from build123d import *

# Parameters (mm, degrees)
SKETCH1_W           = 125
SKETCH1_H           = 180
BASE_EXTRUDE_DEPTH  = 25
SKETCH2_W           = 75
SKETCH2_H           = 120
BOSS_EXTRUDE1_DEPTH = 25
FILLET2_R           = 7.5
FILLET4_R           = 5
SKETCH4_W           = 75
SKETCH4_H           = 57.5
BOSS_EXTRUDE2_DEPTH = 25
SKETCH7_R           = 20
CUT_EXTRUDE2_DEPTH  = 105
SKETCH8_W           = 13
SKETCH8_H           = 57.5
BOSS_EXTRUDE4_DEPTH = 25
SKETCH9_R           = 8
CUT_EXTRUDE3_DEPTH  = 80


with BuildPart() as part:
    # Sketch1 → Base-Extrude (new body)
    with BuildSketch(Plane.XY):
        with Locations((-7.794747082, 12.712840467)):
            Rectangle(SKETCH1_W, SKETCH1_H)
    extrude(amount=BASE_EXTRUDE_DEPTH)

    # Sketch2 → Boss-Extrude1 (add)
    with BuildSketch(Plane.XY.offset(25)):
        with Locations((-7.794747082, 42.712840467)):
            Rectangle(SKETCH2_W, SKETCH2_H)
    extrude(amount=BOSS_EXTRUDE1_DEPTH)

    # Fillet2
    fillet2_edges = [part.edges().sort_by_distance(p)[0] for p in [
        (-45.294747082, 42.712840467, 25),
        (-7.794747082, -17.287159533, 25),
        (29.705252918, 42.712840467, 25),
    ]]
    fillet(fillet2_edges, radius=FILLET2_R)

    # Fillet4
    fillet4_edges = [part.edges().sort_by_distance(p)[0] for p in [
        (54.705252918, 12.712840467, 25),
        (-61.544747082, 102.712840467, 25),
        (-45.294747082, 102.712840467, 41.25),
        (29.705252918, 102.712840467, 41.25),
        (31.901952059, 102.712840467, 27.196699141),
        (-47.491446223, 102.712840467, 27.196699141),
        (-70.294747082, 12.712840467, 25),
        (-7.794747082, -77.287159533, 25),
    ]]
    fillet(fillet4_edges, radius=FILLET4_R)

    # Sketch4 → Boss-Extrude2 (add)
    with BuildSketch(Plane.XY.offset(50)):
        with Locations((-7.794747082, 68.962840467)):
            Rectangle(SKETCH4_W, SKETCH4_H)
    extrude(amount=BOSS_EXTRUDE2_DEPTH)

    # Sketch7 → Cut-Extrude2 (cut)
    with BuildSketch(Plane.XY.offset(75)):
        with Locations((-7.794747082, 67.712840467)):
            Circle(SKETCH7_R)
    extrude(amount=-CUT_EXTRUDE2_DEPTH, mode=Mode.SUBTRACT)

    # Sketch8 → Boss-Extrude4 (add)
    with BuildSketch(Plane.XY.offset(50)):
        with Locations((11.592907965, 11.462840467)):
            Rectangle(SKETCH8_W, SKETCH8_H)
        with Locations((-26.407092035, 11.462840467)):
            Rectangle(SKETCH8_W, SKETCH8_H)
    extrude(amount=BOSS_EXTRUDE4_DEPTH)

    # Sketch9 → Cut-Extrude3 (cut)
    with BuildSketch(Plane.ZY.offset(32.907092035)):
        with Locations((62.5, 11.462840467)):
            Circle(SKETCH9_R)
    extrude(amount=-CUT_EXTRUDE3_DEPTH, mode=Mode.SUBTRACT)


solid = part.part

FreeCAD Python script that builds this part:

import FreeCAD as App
import Part
import Sketcher
from FreeCAD import Vector
Q = App.Units.Quantity


def edges_at(feature, points):
    """Names of the edges that pass closest to the given points."""
    edges = feature.Shape.Edges
    near = lambda p: min(range(len(edges)), key=lambda i: edges[i].distToShape(Part.Vertex(*p))[0])
    return sorted({f"Edge{near(p) + 1}" for p in points})


def add_polygon(sketch, points):
    """Adds a closed chain of lines whose ends are joined by coincident constraints."""
    first, n = sketch.GeometryCount, len(points)
    for a, b in zip(points, points[1:] + points[:1]):
        sketch.addGeometry(Part.LineSegment(App.Vector(*a, 0), App.Vector(*b, 0)), False)
    for i in range(n):
        sketch.addConstraint(Sketcher.Constraint("Coincident", first + i, 2, first + (i + 1) % n, 1))

doc = App.newDocument("Part")
body = doc.addObject("PartDesign::Body", "Body")

# Sketch on XY plane
sketch1 = body.newObject("Sketcher::SketchObject", "Sketch")
sketch1.AttachmentSupport = (doc.getObject("XY_Plane"), [""])
sketch1.MapMode = "FlatFace"
add_polygon(sketch1, [(-70, 103), (-70, -77), (55, -77), (55, 103)])  # lines 0-3
sketch1.addConstraint(Sketcher.Constraint("Vertical", 0))
sketch1.addConstraint(Sketcher.Constraint("Horizontal", 1))
sketch1.addConstraint(Sketcher.Constraint("Vertical", 2))
sketch1.addConstraint(Sketcher.Constraint("Horizontal", 3))
sketch1.addConstraint(Sketcher.Constraint("DistanceX", 1, 1, 1, 2, Q("125 mm")))
sketch1.addConstraint(Sketcher.Constraint("DistanceY", 0, 2, 0, 1, Q("180 mm")))
sketch1.addConstraint(Sketcher.Constraint("DistanceY", 0, 2, -1, 1, Q("77.28716 mm")))
sketch1.addConstraint(Sketcher.Constraint("DistanceX", 0, 2, -1, 1, Q("70.294747 mm")))
pad1 = body.newObject("PartDesign::Pad", "Pad")
pad1.Profile = sketch1
pad1.Length = 25

# Sketch on XY plane
sketch2 = body.newObject("Sketcher::SketchObject", "Sketch001")
sketch2.AttachmentSupport = (doc.getObject("XY_Plane"), [""])
sketch2.MapMode = "FlatFace"
sketch2.AttachmentOffset = App.Placement(Vector(0, 0, 25), App.Rotation())
add_polygon(sketch2, [(-45, 103), (-45, -17), (30, -17), (30, 103)])  # lines 0-3
sketch2.addConstraint(Sketcher.Constraint("Vertical", 0))
sketch2.addConstraint(Sketcher.Constraint("Horizontal", 1))
sketch2.addConstraint(Sketcher.Constraint("Vertical", 2))
sketch2.addConstraint(Sketcher.Constraint("Horizontal", 3))
sketch2.addConstraint(Sketcher.Constraint("DistanceX", 1, 1, 1, 2, Q("75 mm")))
sketch2.addConstraint(Sketcher.Constraint("DistanceY", 0, 2, 0, 1, Q("120 mm")))
sketch2.addConstraint(Sketcher.Constraint("DistanceY", 0, 2, -1, 1, Q("17.28716 mm")))
sketch2.addConstraint(Sketcher.Constraint("DistanceX", 0, 2, -1, 1, Q("45.294747 mm")))
pad2 = body.newObject("PartDesign::Pad", "Pad001")
pad2.Profile = sketch2
pad2.Length = 25
doc.recompute()

fillet = body.newObject("PartDesign::Fillet", "Fillet")
fillet.Base = (pad2, edges_at(pad2, [(-45.295, 42.713, 25), (-7.795, -17.287, 25), (29.705, 42.713, 25)]))
fillet.Radius = 7.5
doc.recompute()

fillet2 = body.newObject("PartDesign::Fillet", "Fillet001")
fillet2.Base = (fillet, edges_at(fillet, [
    (54.705, 12.713, 25),
    (-61.545, 102.713, 25),
    (-45.295, 102.713, 41.25),
    (29.705, 102.713, 41.25),
    (31.902, 102.713, 27.197),
    (-47.491, 102.713, 27.197),
    (-70.295, 12.713, 25),
    (-7.795, -77.287, 25),
]))
fillet2.Radius = 5

# Sketch on XY plane
sketch3 = body.newObject("Sketcher::SketchObject", "Sketch002")
sketch3.AttachmentSupport = (doc.getObject("XY_Plane"), [""])
sketch3.MapMode = "FlatFace"
sketch3.AttachmentOffset = App.Placement(Vector(0, 0, 50), App.Rotation())
add_polygon(sketch3, [(-45, 98), (-45, 40), (30, 40), (30, 98)])  # lines 0-3
sketch3.addConstraint(Sketcher.Constraint("Vertical", 0))
sketch3.addConstraint(Sketcher.Constraint("Horizontal", 1))
sketch3.addConstraint(Sketcher.Constraint("Vertical", 2))
sketch3.addConstraint(Sketcher.Constraint("Horizontal", 3))
sketch3.addConstraint(Sketcher.Constraint("DistanceX", 1, 1, 1, 2, Q("75 mm")))
sketch3.addConstraint(Sketcher.Constraint("DistanceY", 0, 2, 0, 1, Q("57.5 mm")))
sketch3.addConstraint(Sketcher.Constraint("DistanceY", -1, 1, 0, 2, Q("40.21284 mm")))
sketch3.addConstraint(Sketcher.Constraint("DistanceX", 0, 2, -1, 1, Q("45.294747 mm")))
pad3 = body.newObject("PartDesign::Pad", "Pad002")
pad3.Profile = sketch3
pad3.Length = 25

# Sketch on XY plane
sketch4 = body.newObject("Sketcher::SketchObject", "Sketch003")
sketch4.AttachmentSupport = (doc.getObject("XY_Plane"), [""])
sketch4.MapMode = "FlatFace"
sketch4.AttachmentOffset = App.Placement(Vector(0, 0, 75), App.Rotation())
sketch4.addGeometry(Part.Circle(Vector(-8, 68, 0), Vector(0, 0, 1), 20), False)
sketch4.addConstraint(Sketcher.Constraint("Diameter", 0, Q("40 mm")))
sketch4.addConstraint(Sketcher.Constraint("DistanceY", -1, 1, 0, 3, Q("67.71284 mm")))
sketch4.addConstraint(Sketcher.Constraint("DistanceX", 0, 3, -1, 1, Q("7.794747 mm")))
pocket1 = body.newObject("PartDesign::Pocket", "Pocket")
pocket1.Profile = sketch4
pocket1.Length = 105

# Sketch on XY plane
sketch5 = body.newObject("Sketcher::SketchObject", "Sketch004")
sketch5.AttachmentSupport = (doc.getObject("XY_Plane"), [""])
sketch5.MapMode = "FlatFace"
sketch5.AttachmentOffset = App.Placement(Vector(0, 0, 50), App.Rotation())
add_polygon(sketch5, [(5, 40), (5, -17), (18, -17), (18, 40)])  # lines 0-3
add_polygon(sketch5, [(-33, 40), (-33, -17), (-20, -17), (-20, 40)])  # lines 4-7
sketch5.addConstraint(Sketcher.Constraint("Vertical", 0))
sketch5.addConstraint(Sketcher.Constraint("Horizontal", 1))
sketch5.addConstraint(Sketcher.Constraint("Vertical", 2))
sketch5.addConstraint(Sketcher.Constraint("Horizontal", 3))
sketch5.addConstraint(Sketcher.Constraint("Vertical", 4))
sketch5.addConstraint(Sketcher.Constraint("Horizontal", 5))
sketch5.addConstraint(Sketcher.Constraint("Vertical", 6))
sketch5.addConstraint(Sketcher.Constraint("Horizontal", 7))
sketch5.addConstraint(Sketcher.Constraint("Horizontal", 1, 2, 4, 2))
sketch5.addConstraint(Sketcher.Constraint("Horizontal", 3, 2, 6, 2))
sketch5.addConstraint(Sketcher.Constraint("Equal", 3, 5))
sketch5.addConstraint(Sketcher.Constraint("DistanceX", 1, 1, 1, 2, Q("13 mm")))
sketch5.addConstraint(Sketcher.Constraint("DistanceY", 0, 2, 0, 1, Q("57.5 mm")))
sketch5.addConstraint(Sketcher.Constraint("DistanceX", 4, 2, 0, 2, Q("38 mm")))
sketch5.addConstraint(Sketcher.Constraint("DistanceY", 0, 2, -1, 1, Q("17.28716 mm")))
sketch5.addConstraint(Sketcher.Constraint("DistanceX", -1, 1, 0, 2, Q("5.092908 mm")))
pad4 = body.newObject("PartDesign::Pad", "Pad003")
pad4.Profile = sketch5
pad4.Length = 25

# Sketch on YZ plane
sketch6 = body.newObject("Sketcher::SketchObject", "Sketch005")
sketch6.AttachmentSupport = (doc.getObject("YZ_Plane"), [""])
sketch6.MapMode = "FlatFace"
sketch6.AttachmentOffset = App.Placement(Vector(0, 0, -32.907092), App.Rotation())
sketch6.addGeometry(Part.Circle(Vector(11, 62, 0), Vector(0, 0, 1), 8), False)
sketch6.addConstraint(Sketcher.Constraint("Diameter", 0, Q("16 mm")))
sketch6.addConstraint(Sketcher.Constraint("DistanceY", -1, 1, 0, 3, Q("62.5 mm")))
sketch6.addConstraint(Sketcher.Constraint("DistanceX", -1, 1, 0, 3, Q("11.46284 mm")))
pocket2 = body.newObject("PartDesign::Pocket", "Pocket001")
pocket2.Profile = sketch6
pocket2.Length = 80
pocket2.Reversed = True

doc.recompute()
